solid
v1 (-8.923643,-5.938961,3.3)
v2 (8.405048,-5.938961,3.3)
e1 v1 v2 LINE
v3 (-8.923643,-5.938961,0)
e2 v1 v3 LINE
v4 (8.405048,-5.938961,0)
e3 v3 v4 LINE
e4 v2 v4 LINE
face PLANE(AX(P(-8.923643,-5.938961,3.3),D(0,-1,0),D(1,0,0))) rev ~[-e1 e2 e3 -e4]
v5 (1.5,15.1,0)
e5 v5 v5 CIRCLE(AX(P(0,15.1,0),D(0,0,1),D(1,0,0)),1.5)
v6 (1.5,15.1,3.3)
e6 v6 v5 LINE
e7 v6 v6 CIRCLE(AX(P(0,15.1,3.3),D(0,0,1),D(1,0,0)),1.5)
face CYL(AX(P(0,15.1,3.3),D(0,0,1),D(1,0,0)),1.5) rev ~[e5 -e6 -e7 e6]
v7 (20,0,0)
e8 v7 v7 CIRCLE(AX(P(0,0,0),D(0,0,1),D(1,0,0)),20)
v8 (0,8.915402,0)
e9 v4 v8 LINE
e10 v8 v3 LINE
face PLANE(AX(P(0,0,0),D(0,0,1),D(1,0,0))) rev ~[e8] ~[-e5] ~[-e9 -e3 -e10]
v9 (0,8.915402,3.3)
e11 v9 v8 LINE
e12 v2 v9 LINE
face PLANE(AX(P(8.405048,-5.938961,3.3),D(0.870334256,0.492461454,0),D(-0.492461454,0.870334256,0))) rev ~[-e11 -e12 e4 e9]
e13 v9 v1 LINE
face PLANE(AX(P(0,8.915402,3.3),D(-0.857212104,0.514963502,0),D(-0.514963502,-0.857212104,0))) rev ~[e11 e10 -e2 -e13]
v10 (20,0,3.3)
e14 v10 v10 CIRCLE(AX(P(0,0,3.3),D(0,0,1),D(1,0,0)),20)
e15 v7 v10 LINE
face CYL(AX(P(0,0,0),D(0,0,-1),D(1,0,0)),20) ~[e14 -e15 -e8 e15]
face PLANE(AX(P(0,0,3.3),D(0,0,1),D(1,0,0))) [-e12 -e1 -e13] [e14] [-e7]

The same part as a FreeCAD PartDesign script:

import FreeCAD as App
import Part
import Sketcher

doc = App.newDocument("Part")
body = doc.addObject("PartDesign::Body", "Body")

sketch1 = body.newObject("Sketcher::SketchObject", "Sketch")
sketch1.AttachmentSupport = (doc.getObject("XY_Plane"), [""])
sketch1.MapMode = "FlatFace"
sketch1.addGeometry(Part.Circle(App.Vector(0, 0, 0), App.Vector(0, 0, 1), 20), False)
sketch1.addConstraint([
    Sketcher.Constraint("Coincident", 0, 3, -1, 1),
    Sketcher.Constraint("Diameter", 0, 40.0),
])
pad1 = body.newObject("PartDesign::Pad", "Pad")
pad1.Profile = sketch1
pad1.Length = 3.3

sketch2 = body.newObject("Sketcher::SketchObject", "Sketch001")
sketch2.AttachmentSupport = (doc.getObject("XY_Plane"), [""])
sketch2.MapMode = "FlatFace"
sketch2.AttachmentOffset = App.Placement(App.Vector(0, 0, 3.3), App.Rotation())
sketch2.addGeometry(Part.Circle(App.Vector(0, 15.1, 0), App.Vector(0, 0, 1), 1.5), False)
sketch2.addConstraint([
    Sketcher.Constraint("PointOnObject", 0, 3, -2),
    Sketcher.Constraint("Diameter", 0, 3.0),
    Sketcher.Constraint("DistanceY", -1, 1, 0, 3, 15.1),
])
pocket1 = body.newObject("PartDesign::Pocket", "Pocket")
pocket1.Profile = sketch2
pocket1.Type = "ThroughAll"

sketch3 = body.newObject("Sketcher::SketchObject", "Sketch002")
sketch3.AttachmentSupport = (doc.getObject("XY_Plane"), [""])
sketch3.MapMode = "FlatFace"
sketch3.AttachmentOffset = App.Placement(App.Vector(0, 0, 3.3), App.Rotation())
sketch3.addGeometry([
    Part.LineSegment(App.Vector(0, 8.915402, 0), App.Vector(-8.923643, -5.938961, 0)),
    Part.LineSegment(App.Vector(-8.923643, -5.938961, 0), App.Vector(8.405048, -5.938961, 0)),
    Part.LineSegment(App.Vector(8.405048, -5.938961, 0), App.Vector(0, 8.915402, 0)),
], False)
sketch3.addConstraint([
    Sketcher.Constraint("Coincident", 0, 2, 1, 1),
    Sketcher.Constraint("Coincident", 1, 2, 2, 1),
    Sketcher.Constraint("Coincident", 2, 2, 0, 1),
    Sketcher.Constraint("Horizontal", 1),
    Sketcher.Constraint("PointOnObject", 2, 2, -2),
    Sketcher.Constraint("DistanceX", 1, 1, 1, 2, 17.328691),
    Sketcher.Constraint("Distance", 0, 17.32869),
    Sketcher.Constraint("DistanceY", 0, 2, -1, 1, 5.938961),
    Sketcher.Constraint("DistanceX", -1, 1, 1, 2, 8.405048),
])
pocket2 = body.newObject("PartDesign::Pocket", "Pocket001")
pocket2.Profile = sketch3
pocket2.Type = "ThroughAll"

doc.recompute()
